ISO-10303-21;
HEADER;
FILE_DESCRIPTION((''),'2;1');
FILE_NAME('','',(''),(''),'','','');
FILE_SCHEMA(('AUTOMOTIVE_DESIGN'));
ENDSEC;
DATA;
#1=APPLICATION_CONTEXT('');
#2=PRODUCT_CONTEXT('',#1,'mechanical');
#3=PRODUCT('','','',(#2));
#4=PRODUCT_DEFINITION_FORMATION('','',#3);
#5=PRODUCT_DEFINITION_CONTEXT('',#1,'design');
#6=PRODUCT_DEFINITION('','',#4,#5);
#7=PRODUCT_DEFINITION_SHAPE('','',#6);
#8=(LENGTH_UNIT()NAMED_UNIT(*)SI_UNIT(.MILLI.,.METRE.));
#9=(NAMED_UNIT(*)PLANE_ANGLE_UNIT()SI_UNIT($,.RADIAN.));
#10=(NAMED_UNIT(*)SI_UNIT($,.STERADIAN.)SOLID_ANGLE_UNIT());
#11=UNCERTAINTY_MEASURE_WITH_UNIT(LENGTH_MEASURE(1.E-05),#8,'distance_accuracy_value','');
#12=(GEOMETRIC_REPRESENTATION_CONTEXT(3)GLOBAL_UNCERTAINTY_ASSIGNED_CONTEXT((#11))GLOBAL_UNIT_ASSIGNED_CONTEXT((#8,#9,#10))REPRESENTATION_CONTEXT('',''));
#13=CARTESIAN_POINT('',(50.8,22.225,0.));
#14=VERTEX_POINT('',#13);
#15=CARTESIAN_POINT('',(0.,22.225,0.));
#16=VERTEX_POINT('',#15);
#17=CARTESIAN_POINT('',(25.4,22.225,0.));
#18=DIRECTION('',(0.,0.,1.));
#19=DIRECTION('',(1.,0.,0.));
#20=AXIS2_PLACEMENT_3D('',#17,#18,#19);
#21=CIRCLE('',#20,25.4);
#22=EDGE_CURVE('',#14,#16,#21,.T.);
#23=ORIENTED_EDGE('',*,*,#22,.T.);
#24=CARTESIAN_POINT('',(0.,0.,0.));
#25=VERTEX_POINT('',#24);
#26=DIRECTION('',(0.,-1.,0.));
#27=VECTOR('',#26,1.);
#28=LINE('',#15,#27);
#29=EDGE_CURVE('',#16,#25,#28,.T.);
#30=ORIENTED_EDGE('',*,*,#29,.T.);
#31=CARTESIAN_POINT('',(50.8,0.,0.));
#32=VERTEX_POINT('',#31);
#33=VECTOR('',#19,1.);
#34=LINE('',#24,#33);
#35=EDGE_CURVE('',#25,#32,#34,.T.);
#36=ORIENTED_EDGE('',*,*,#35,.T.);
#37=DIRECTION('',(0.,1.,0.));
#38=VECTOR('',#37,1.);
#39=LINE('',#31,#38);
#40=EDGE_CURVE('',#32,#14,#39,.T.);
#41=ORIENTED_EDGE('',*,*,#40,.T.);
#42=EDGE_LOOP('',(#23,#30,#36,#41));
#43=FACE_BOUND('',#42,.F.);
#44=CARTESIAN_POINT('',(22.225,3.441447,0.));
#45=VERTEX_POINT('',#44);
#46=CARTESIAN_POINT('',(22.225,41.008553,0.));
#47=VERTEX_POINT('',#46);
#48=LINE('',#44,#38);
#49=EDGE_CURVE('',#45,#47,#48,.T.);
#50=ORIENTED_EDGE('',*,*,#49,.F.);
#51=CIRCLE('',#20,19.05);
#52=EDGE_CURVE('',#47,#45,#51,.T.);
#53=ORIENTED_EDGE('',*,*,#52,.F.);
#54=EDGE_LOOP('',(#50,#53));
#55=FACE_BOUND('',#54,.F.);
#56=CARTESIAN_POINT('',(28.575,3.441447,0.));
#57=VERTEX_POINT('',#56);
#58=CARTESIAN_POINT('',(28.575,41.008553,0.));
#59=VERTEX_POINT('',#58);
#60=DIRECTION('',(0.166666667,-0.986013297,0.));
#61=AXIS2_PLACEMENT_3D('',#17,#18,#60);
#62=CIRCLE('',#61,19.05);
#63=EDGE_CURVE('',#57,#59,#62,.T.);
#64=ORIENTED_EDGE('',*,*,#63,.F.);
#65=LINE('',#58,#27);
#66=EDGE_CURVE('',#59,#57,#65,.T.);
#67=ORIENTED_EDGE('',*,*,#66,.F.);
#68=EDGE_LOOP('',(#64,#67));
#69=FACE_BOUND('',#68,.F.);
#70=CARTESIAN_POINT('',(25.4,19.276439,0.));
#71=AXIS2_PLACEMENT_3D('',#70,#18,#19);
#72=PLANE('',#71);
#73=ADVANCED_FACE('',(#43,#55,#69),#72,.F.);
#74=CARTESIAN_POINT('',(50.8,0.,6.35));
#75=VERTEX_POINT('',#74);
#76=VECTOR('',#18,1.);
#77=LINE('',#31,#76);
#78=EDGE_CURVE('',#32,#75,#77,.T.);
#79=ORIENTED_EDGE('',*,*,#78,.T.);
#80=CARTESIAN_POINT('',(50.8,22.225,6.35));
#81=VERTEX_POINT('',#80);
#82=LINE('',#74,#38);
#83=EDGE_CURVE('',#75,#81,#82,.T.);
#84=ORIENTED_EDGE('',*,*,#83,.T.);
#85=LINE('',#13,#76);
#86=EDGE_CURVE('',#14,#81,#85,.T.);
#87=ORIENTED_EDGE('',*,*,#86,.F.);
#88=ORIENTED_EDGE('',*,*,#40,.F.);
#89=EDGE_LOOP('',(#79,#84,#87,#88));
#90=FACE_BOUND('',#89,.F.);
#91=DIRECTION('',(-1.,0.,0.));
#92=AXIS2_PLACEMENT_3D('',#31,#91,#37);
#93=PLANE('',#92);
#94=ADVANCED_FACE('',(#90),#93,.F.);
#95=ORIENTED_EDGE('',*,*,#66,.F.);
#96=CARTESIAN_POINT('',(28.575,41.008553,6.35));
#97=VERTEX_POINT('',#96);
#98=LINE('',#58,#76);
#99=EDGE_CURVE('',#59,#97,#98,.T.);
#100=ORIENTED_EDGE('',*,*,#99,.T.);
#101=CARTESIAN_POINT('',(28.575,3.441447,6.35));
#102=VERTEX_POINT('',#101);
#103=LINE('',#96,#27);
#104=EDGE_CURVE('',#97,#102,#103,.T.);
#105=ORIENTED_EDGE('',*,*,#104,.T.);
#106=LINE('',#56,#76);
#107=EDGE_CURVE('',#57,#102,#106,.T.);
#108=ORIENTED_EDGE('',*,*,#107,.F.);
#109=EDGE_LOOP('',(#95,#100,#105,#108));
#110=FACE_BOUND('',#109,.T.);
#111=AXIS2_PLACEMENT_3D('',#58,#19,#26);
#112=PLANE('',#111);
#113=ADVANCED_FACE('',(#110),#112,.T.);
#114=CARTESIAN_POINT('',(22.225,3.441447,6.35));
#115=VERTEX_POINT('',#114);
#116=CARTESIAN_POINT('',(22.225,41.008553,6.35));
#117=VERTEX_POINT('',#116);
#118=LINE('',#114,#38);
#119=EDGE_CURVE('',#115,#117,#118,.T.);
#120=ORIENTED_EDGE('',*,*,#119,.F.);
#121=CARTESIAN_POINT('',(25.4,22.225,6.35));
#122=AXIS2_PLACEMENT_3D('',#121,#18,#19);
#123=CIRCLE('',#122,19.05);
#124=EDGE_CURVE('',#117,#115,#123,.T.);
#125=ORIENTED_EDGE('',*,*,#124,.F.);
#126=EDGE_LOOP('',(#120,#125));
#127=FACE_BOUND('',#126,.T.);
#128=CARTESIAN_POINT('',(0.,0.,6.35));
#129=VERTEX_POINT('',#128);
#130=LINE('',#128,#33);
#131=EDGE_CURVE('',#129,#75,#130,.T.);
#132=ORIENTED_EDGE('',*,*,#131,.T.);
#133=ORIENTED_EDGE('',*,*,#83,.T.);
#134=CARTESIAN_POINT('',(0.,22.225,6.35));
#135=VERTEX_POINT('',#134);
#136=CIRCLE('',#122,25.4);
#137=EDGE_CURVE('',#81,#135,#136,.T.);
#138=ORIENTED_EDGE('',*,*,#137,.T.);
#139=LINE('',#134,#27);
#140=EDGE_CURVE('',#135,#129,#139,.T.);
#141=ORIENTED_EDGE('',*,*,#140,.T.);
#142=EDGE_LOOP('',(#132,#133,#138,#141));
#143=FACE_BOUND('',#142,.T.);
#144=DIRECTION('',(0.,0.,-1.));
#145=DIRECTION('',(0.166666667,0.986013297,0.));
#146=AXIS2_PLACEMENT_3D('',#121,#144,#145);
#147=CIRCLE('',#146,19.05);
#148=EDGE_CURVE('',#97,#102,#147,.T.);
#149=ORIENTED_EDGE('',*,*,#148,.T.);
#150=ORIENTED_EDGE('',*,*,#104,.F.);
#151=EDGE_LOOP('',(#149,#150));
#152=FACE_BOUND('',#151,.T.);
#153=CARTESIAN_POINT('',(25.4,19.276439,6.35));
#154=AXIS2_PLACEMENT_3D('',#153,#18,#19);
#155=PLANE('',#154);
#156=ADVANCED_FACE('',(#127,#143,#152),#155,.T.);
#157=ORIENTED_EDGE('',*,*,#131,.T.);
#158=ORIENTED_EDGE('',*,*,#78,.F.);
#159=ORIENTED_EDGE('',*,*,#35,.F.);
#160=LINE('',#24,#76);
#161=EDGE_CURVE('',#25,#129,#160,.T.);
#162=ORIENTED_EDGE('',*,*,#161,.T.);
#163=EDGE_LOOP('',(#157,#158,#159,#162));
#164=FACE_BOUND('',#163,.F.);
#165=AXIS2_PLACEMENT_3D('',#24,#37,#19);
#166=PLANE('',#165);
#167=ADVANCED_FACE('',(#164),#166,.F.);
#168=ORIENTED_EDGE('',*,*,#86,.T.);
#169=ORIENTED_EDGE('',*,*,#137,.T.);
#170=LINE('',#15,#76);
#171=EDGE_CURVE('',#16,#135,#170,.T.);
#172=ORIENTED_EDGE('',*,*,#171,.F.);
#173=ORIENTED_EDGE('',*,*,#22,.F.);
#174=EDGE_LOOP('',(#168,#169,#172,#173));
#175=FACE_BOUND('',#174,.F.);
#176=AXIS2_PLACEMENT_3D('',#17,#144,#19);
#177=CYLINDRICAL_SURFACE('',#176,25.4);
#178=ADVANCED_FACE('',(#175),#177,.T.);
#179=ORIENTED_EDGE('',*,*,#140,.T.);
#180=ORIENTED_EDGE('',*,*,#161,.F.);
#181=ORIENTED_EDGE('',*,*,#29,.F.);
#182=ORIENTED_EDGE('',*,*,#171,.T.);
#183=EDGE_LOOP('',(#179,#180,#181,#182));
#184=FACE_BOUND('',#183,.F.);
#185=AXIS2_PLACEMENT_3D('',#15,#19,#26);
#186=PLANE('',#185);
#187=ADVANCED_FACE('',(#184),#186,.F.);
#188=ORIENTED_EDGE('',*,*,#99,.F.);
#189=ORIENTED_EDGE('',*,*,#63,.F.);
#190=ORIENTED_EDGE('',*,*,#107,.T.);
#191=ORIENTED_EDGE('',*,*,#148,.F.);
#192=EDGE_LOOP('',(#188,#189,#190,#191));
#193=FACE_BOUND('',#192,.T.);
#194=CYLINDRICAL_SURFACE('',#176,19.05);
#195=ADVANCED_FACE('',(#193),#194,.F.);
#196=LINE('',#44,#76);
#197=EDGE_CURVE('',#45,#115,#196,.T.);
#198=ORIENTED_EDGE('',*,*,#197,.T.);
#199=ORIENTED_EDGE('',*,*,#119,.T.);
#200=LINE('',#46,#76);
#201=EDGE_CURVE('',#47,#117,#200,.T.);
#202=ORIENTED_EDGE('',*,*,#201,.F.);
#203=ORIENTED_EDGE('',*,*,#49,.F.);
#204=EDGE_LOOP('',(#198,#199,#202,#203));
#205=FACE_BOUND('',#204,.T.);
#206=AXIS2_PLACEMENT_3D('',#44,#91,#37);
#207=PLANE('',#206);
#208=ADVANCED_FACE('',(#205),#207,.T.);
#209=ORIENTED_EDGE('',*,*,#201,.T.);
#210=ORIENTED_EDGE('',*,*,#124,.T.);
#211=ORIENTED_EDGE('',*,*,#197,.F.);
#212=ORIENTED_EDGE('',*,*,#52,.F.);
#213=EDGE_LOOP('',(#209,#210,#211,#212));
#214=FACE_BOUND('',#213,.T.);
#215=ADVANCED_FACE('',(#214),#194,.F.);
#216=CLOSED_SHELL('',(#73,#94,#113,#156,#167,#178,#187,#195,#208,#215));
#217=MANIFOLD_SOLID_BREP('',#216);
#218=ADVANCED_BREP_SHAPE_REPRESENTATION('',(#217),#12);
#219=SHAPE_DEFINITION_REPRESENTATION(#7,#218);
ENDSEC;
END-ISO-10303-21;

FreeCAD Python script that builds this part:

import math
import FreeCAD as App
import Part
import Sketcher
Q = App.Units.Quantity

doc = App.newDocument("Part")
body = doc.addObject("PartDesign::Body", "Body")

sketch1 = doc.addObject("Sketcher::SketchObject", "Sketch")
body.addObject(sketch1)
sketch1.AttachmentSupport = (doc.XY_Plane, [""])
sketch1.MapMode = "FlatFace"
sketch1.addGeometry([
    Part.LineSegment(App.Vector(0, 22, 0), App.Vector(0, 0, 0)),
    Part.LineSegment(App.Vector(0, 0, 0), App.Vector(51, 0, 0)),
    Part.LineSegment(App.Vector(51, 0, 0), App.Vector(51, 22, 0)),
    Part.ArcOfCircle(Part.Circle(App.Vector(25, 22, 0), App.Vector(0, 0, 1), 25), math.radians(0), math.radians(180)),
    Part.Circle(App.Vector(25, 22, 0), App.Vector(0, 0, 1), 19),
], False)
sketch1.addConstraint([
    Sketcher.Constraint("Coincident", 0, 2, 1, 1),
    Sketcher.Constraint("Coincident", 1, 2, 2, 1),
    Sketcher.Constraint("Tangent", 2, 2, 3, 1),
    Sketcher.Constraint("Tangent", 3, 2, 0, 1),
    Sketcher.Constraint("Vertical", 0),
    Sketcher.Constraint("Horizontal", 1),
    Sketcher.Constraint("Vertical", 2),
    Sketcher.Constraint("Coincident", 0, 2, -1, 1),
    Sketcher.Constraint("Coincident", 4, 3, 3, 3),
    Sketcher.Constraint("Radius", 3, Q("1 in")),
    Sketcher.Constraint("Diameter", 4, Q("1.5 in")),
    Sketcher.Constraint("DistanceY", 0, 2, 0, 1, Q("0.875 in")),
])
pad1 = doc.addObject("PartDesign::Pad", "Pad")
body.addObject(pad1)
pad1.Profile = sketch1
pad1.Length = Q("0.25 in")

sketch2 = doc.addObject("Sketcher::SketchObject", "Sketch001")
body.addObject(sketch2)
sketch2.AttachmentSupport = (doc.XY_Plane, [""])
sketch2.MapMode = "FlatFace"
sketch2.addGeometry([
    Part.LineSegment(App.Vector(29, 41, 0), App.Vector(29, 3, 0)),
    Part.ArcOfCircle(Part.Circle(App.Vector(25, 22, 0), App.Vector(0, 0, 1), 19), math.radians(-99.59), math.radians(-80.41)),
    Part.LineSegment(App.Vector(22, 3, 0), App.Vector(22, 41, 0)),
    Part.ArcOfCircle(Part.Circle(App.Vector(25, 22, 0), App.Vector(0, 0, 1), 19), math.radians(80.41), math.radians(99.59)),
], False)
sketch2.addConstraint([
    Sketcher.Constraint("Coincident", 0, 2, 1, 2),
    Sketcher.Constraint("Coincident", 1, 1, 2, 1),
    Sketcher.Constraint("Coincident", 2, 2, 3, 2),
    Sketcher.Constraint("Coincident", 3, 1, 0, 1),
    Sketcher.Constraint("Vertical", 0),
    Sketcher.Constraint("Vertical", 2),
    Sketcher.Constraint("Coincident", 3, 3, 1, 3),
    Sketcher.Constraint("Equal", 1, 3),
    Sketcher.Constraint("Horizontal", 0, 2, 1, 1),
    Sketcher.Constraint("Radius", 1, Q("0.75 in")),
    Sketcher.Constraint("DistanceX", -1, 1, 1, 3, Q("1 in")),
    Sketcher.Constraint("DistanceX", 1, 1, 0, 2, Q("0.25 in")),
    Sketcher.Constraint("DistanceY", -1, 1, 1, 3, Q("0.875 in")),
])
pad2 = doc.addObject("PartDesign::Pad", "Pad001")
body.addObject(pad2)
pad2.Profile = sketch2
pad2.Length = Q("0.25 in")

doc.recompute()
